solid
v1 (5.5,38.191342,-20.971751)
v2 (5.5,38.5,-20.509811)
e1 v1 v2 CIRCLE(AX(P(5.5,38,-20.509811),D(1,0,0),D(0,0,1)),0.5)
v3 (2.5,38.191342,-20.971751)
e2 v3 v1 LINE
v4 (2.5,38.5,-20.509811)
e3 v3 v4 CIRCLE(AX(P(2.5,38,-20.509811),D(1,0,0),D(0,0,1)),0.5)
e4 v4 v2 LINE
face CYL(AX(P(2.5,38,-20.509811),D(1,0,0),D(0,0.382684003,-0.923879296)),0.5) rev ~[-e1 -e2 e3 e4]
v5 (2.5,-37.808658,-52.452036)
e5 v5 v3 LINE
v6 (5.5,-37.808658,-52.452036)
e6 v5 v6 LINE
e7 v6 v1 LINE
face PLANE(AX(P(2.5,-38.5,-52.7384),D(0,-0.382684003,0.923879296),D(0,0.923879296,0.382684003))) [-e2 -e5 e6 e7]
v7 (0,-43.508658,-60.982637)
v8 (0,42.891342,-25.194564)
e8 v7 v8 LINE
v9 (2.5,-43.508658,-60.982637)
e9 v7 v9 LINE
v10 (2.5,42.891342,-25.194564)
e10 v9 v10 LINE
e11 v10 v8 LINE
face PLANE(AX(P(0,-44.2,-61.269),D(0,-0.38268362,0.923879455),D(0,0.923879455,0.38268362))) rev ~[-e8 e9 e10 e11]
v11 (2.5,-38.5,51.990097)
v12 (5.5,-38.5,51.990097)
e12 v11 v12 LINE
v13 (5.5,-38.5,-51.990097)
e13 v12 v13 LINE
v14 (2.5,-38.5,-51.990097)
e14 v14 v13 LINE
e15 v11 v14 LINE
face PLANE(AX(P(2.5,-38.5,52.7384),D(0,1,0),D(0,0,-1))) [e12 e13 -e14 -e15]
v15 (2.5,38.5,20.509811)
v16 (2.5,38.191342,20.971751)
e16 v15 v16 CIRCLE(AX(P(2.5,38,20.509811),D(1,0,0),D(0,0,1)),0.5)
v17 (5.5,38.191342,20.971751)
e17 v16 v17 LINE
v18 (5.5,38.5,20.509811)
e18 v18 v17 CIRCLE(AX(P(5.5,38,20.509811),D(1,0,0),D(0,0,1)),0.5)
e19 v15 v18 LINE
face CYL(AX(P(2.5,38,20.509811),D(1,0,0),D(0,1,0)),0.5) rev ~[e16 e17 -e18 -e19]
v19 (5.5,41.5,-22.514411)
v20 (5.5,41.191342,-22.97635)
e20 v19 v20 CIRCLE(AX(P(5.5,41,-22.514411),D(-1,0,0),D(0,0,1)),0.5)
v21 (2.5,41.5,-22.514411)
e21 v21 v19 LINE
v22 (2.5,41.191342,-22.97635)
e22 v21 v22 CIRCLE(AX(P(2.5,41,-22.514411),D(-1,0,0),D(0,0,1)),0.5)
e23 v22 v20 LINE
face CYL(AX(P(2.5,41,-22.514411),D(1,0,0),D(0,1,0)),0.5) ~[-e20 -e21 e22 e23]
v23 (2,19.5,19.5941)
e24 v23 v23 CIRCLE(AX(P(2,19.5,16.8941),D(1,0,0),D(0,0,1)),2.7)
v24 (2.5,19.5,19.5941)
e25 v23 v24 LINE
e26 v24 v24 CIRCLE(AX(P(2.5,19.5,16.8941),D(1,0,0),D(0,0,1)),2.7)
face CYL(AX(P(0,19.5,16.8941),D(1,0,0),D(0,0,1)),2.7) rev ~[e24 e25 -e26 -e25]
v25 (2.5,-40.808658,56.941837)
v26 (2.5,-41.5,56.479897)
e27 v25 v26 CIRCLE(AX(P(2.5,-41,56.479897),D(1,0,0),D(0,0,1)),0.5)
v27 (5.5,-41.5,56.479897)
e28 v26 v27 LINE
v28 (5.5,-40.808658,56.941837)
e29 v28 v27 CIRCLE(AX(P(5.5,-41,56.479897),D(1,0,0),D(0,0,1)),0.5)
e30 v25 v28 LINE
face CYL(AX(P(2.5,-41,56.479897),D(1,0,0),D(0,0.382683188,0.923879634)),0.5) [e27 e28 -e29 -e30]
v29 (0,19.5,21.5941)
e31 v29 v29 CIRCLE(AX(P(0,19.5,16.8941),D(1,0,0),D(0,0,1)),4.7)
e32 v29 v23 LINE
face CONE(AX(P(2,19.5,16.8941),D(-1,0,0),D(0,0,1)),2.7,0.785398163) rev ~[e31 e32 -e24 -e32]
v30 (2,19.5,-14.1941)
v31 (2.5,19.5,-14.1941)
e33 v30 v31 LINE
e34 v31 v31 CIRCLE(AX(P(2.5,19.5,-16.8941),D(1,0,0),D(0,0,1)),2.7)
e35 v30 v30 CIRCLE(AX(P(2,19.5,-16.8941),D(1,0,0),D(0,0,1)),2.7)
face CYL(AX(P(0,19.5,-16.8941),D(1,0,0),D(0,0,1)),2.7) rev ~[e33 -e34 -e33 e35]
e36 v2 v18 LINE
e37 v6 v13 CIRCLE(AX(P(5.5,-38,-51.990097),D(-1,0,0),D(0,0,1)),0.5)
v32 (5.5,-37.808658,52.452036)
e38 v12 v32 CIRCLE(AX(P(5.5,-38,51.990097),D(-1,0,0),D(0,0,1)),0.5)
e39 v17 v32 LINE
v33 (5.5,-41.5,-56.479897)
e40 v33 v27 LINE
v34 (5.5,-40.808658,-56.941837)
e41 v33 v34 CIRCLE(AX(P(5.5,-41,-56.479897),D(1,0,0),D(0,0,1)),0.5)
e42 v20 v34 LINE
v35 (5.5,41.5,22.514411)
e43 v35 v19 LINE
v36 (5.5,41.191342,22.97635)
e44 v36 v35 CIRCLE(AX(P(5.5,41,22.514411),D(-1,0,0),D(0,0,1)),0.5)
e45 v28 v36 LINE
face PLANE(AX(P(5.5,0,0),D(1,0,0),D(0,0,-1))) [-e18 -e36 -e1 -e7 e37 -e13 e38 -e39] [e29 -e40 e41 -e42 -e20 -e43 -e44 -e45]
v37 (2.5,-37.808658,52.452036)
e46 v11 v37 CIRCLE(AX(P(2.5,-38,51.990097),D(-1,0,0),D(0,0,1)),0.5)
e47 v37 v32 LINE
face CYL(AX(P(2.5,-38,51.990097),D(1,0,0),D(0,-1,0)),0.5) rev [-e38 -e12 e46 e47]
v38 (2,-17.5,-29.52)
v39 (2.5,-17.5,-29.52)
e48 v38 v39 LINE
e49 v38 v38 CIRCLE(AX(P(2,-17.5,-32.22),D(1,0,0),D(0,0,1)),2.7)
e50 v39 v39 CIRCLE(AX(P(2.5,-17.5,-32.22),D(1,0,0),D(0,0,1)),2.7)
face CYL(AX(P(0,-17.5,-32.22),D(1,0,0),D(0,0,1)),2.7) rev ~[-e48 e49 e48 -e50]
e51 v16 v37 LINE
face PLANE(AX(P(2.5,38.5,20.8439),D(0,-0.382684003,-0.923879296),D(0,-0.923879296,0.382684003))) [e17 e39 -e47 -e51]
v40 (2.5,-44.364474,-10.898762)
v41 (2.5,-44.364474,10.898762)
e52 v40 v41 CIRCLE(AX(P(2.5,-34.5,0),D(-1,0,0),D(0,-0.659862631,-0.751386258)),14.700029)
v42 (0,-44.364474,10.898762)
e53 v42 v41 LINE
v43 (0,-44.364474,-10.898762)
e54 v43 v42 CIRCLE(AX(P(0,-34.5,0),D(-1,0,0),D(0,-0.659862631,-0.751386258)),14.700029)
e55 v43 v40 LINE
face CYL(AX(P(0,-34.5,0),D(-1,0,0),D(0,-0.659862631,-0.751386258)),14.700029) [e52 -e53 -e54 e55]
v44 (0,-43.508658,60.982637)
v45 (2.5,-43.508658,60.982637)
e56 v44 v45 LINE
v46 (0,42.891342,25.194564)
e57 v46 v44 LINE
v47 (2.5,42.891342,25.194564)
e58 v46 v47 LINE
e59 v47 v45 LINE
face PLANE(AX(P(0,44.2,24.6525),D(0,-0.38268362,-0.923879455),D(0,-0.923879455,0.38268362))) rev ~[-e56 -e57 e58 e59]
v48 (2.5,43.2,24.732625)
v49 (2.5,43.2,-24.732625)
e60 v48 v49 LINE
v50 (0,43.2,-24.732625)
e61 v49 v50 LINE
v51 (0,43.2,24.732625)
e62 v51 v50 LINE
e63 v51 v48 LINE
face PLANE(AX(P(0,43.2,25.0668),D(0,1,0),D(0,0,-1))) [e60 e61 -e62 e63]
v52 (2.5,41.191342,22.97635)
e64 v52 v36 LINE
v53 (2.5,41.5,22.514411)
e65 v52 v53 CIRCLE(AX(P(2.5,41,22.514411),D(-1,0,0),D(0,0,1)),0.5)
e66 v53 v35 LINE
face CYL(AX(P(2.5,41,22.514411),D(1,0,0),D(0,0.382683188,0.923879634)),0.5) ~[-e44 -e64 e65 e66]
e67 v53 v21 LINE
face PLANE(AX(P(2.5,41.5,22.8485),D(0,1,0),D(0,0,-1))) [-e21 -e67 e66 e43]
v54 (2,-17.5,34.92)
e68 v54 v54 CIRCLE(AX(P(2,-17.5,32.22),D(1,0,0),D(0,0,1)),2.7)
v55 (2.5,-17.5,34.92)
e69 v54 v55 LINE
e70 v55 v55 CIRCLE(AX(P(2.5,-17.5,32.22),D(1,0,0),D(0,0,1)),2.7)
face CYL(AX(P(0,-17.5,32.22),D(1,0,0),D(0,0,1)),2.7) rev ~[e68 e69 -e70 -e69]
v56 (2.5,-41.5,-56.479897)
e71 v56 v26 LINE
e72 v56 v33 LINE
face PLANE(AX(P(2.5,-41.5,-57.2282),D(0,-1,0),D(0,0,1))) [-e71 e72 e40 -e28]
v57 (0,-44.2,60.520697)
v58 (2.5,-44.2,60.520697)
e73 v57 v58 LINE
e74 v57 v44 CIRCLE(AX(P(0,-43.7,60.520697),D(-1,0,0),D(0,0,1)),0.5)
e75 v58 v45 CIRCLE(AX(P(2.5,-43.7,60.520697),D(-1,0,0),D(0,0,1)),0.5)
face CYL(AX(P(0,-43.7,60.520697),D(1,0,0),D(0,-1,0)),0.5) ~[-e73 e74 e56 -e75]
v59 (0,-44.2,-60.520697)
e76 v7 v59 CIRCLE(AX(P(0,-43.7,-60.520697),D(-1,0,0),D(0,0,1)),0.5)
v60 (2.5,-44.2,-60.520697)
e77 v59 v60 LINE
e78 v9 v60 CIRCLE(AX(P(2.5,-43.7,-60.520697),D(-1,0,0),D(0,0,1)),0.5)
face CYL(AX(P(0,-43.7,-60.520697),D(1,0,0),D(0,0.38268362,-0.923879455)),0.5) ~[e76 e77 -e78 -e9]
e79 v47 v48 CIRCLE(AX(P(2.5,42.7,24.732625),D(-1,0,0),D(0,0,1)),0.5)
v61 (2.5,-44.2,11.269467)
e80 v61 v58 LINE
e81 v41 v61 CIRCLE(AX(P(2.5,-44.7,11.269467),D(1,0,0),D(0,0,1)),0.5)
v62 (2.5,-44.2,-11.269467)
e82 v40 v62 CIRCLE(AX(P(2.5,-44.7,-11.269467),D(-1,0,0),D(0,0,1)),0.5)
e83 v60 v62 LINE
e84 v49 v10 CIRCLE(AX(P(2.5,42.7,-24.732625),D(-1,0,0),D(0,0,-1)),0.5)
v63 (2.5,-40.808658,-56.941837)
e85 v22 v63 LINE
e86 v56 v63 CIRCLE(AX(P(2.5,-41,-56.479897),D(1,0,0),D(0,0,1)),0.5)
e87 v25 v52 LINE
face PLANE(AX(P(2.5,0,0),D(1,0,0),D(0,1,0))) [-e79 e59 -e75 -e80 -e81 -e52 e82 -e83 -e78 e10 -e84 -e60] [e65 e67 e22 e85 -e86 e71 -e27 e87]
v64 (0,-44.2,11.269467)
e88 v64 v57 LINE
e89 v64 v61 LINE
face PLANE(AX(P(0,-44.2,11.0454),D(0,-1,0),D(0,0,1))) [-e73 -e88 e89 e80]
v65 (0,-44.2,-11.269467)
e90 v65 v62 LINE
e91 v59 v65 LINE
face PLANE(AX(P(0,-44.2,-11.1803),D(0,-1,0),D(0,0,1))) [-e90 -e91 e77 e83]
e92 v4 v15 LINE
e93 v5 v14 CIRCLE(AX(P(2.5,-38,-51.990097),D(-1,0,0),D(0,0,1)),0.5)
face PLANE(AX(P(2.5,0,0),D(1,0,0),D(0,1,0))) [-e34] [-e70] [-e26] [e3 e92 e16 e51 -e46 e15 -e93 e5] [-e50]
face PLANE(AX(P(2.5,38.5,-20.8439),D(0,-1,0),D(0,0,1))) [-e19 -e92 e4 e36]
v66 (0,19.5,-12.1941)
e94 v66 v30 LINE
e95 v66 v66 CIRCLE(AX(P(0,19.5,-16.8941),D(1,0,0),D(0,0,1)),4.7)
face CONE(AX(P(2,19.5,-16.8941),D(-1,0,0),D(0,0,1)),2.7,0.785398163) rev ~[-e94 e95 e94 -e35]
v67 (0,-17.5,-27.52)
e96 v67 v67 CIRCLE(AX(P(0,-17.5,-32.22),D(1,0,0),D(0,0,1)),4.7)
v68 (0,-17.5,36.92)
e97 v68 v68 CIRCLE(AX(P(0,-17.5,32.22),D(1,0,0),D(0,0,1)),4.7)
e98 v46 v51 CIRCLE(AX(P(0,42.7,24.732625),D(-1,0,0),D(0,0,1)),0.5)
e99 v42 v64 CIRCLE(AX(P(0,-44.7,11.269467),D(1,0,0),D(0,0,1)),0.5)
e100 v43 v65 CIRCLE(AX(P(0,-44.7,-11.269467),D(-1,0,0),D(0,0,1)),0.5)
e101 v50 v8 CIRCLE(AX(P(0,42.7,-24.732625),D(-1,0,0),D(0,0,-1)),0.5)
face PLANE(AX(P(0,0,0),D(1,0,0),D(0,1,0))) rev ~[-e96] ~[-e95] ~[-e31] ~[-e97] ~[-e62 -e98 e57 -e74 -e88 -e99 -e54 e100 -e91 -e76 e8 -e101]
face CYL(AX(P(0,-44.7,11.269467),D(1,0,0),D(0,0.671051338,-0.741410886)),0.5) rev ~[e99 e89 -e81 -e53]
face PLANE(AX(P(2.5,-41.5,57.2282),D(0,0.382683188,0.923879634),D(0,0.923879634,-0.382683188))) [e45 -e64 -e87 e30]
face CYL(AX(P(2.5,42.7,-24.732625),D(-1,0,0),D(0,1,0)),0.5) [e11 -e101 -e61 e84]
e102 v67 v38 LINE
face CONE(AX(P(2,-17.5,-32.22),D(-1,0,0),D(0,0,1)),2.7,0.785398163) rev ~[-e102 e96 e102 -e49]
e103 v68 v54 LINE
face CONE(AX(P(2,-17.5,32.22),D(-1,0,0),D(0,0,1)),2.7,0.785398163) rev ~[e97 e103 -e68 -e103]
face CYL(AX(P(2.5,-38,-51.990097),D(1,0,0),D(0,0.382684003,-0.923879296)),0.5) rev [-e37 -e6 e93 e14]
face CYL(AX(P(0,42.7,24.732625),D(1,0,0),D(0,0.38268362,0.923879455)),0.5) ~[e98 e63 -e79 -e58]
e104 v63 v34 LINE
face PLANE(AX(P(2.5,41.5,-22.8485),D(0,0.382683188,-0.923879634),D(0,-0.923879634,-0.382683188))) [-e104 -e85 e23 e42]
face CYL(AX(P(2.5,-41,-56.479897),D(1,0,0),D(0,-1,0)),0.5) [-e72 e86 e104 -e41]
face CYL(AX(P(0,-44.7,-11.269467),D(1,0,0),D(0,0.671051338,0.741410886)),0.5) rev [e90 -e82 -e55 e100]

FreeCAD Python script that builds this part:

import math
import FreeCAD as App
import Part
import Sketcher
from FreeCAD import Vector
Q = App.Units.Quantity


def edges_at(feature, points):
    """Names of the edges that pass closest to the given points."""
    edges = feature.Shape.Edges
    near = lambda p: min(range(len(edges)), key=lambda i: edges[i].distToShape(Part.Vertex(*p))[0])
    return sorted({f"Edge{near(p) + 1}" for p in points})


def add_polygon(sketch, points):
    """Adds a closed chain of lines whose ends are joined by coincident constraints."""
    first, n = sketch.GeometryCount, len(points)
    for a, b in zip(points, points[1:] + points[:1]):
        sketch.addGeometry(Part.LineSegment(App.Vector(*a, 0), App.Vector(*b, 0)), False)
    for i in range(n):
        sketch.addConstraint(Sketcher.Constraint("Coincident", first + i, 2, first + (i + 1) % n, 1))

doc = App.newDocument("Part")
body = doc.addObject("PartDesign::Body", "Body")

sketch1 = body.newObject("Sketcher::SketchObject", "Sketch")
sketch1.AttachmentSupport = (doc.getObject("YZ_Plane"), [""])
sketch1.MapMode = "FlatFace"
add_polygon(sketch1, [(44, -25), (44, 25), (-44, 62), (-44, -62)])
sketch1.addConstraint([
    Sketcher.Constraint("Vertical", 0),
    Sketcher.Constraint("Vertical", 2),
    Sketcher.Constraint("Equal", 1, 3),
    Sketcher.Constraint("DistanceX", 1, 2, 0, 2, 89.0),
    Sketcher.Constraint("DistanceY", 0, 1, 0, 2, 49.706),
    Sketcher.Constraint("Angle", 1, Q("157.5 deg")),
    Sketcher.Constraint("DistanceX", -1, 1, 0, 2, 44.5),
    Sketcher.Constraint("DistanceY", -1, 1, 0, 2, 24.853),
])
pad1 = body.newObject("PartDesign::Pad", "Pad")
pad1.Profile = sketch1
pad1.Length = 2.5

sketch2 = body.newObject("Sketcher::SketchObject", "Sketch001")
sketch2.AttachmentSupport = (doc.getObject("YZ_Plane"), [""])
sketch2.MapMode = "FlatFace"
sketch2.AttachmentOffset = App.Placement(Vector(0, 0, 2.5), App.Rotation())
add_polygon(sketch2, [(42, -23), (42, 23), (-42, 57), (-42, -57)])
add_polygon(sketch2, [(38, 21), (38, -21), (-38, -53), (-38, 53)])
sketch2.addConstraint([
    Sketcher.Constraint("Vertical", 0),
    Sketcher.Constraint("Vertical", 2),
    Sketcher.Constraint("Vertical", 4),
    Sketcher.Constraint("Vertical", 6),
    Sketcher.Constraint("Parallel", 3, 5),
    Sketcher.Constraint("Parallel", 1, 7),
    Sketcher.Constraint("Equal", 1, 3),
    Sketcher.Constraint("DistanceX", 4, 2, 3, 2, 3.0),
    Sketcher.Constraint("DistanceX", 2, 2, 5, 2, 3.0),
    Sketcher.Constraint("Angle", 1, Q("157.5 deg")),
    Sketcher.Constraint("DistanceX", 1, 2, 0, 2, 83.0),
    Sketcher.Constraint("DistanceX", -1, 1, 0, 2, 41.5),
    Sketcher.Constraint("DistanceY", 0, 1, 0, 2, 45.697),
    Sketcher.Constraint("DistanceY", 5, 2, 3, 2, 29.89),
    Sketcher.Constraint("DistanceY", 0, 2, 6, 2, 29.89),
    Sketcher.Constraint("DistanceY", 4, 2, -1, 1, 20.844),
])
pad2 = body.newObject("PartDesign::Pad", "Pad001")
pad2.Profile = sketch2
pad2.Length = 3

sketch3 = body.newObject("Sketcher::SketchObject", "Sketch002")
sketch3.AttachmentSupport = (doc.getObject("YZ_Plane"), [""])
sketch3.MapMode = "FlatFace"
sketch3.addGeometry([
    Part.LineSegment(Vector(-44, 11, 0), Vector(-44, -11, 0)),
    Part.ArcOfCircle(Part.Circle(Vector(-34, 0, 0), Vector(0, 0, 1), 15), math.radians(132), math.radians(228)),
], False)
sketch3.addConstraint([
    Sketcher.Constraint("Coincident", 0, 1, 1, 1),
    Sketcher.Constraint("Coincident", 1, 2, 0, 2),
    Sketcher.Constraint("Vertical", 0),
    Sketcher.Constraint("PointOnObject", 1, 3, -1),
    Sketcher.Constraint("Radius", 1, 15.0),
    Sketcher.Constraint("DistanceX", 0, 1, 1, 3, 10.0),
    Sketcher.Constraint("DistanceX", 1, 3, -1, 1, 34.5),
])
pad3 = body.newObject("PartDesign::Pad", "Pad002")
pad3.Profile = sketch3
pad3.Length = 2.5

sketch4 = body.newObject("Sketcher::SketchObject", "Sketch003")
sketch4.AttachmentSupport = (doc.getObject("YZ_Plane"), [""])
sketch4.MapMode = "FlatFace"
sketch4.addGeometry([
    Part.Circle(Vector(19.5, -16.9, 0), Vector(0, 0, 1), 2.7),
    Part.Circle(Vector(-17.5, -32.2, 0), Vector(0, 0, 1), 2.7),
    Part.Circle(Vector(-17.5, 32.2, 0), Vector(0, 0, 1), 2.7),
    Part.Circle(Vector(19.5, 16.9, 0), Vector(0, 0, 1), 2.7),
], False)
sketch4.addConstraint([
    Sketcher.Constraint("Equal", 0, 1),
    Sketcher.Constraint("Equal", 1, 2),
    Sketcher.Constraint("Equal", 2, 3),
    Sketcher.Constraint("Symmetric", 1, 3, 2, 3, -1),
    Sketcher.Constraint("Symmetric", 0, 3, 3, 3, -1),
    Sketcher.Constraint("Diameter", 0, 5.4),
    Sketcher.Constraint("DistanceX", 1, 3, 0, 3, 37.0),
    Sketcher.Constraint("DistanceX", -1, 1, 0, 3, 19.5),
    Sketcher.Constraint("DistanceY", 1, 3, -1, 1, 32.22),
    Sketcher.Constraint("DistanceY", 0, 3, -1, 1, 16.894),
])
doc.recompute()
hole = body.newObject("PartDesign::Hole", "Hole")
hole.Profile = sketch4
hole.ThreadType = "None"
hole.Diameter = 5.4
hole.DepthType = "ThroughAll"
hole.Reversed = True
doc.recompute()

chamfer = body.newObject("PartDesign::Chamfer", "Chamfer")
chamfer.Base = (hole, edges_at(hole, [
    (0, -17.5, -34.92),
    (0, 19.5, -19.594),
    (0, -17.5, 29.52),
    (0, 19.5, 14.194),
]))
chamfer.Size = 2

sketch5 = body.newObject("Sketcher::SketchObject", "Sketch004")
sketch5.AttachmentSupport = (doc.getObject("YZ_Plane"), [""])
sketch5.MapMode = "FlatFace"
sketch5.addGeometry([
    Part.LineSegment(Vector(-44, 11, 0), Vector(-44, 62, 0)),
    Part.LineSegment(Vector(-44, 62, 0), Vector(44, 25, 0)),
    Part.LineSegment(Vector(44, 25, 0), Vector(44, -25, 0)),
    Part.LineSegment(Vector(44, -25, 0), Vector(-44, -62, 0)),
    Part.LineSegment(Vector(-44, -62, 0), Vector(-44, -11, 0)),
    Part.ArcOfCircle(Part.Circle(Vector(-34, 0, 0), Vector(0, 0, 1), 15), math.radians(132), math.radians(228)),
    Part.LineSegment(Vector(-44, -11, 0), Vector(-44, -61, 0)),
    Part.LineSegment(Vector(-44, -61, 0), Vector(44, -25, 0)),
    Part.LineSegment(Vector(44, -25, 0), Vector(44, 25, 0)),
    Part.LineSegment(Vector(44, 25, 0), Vector(-44, 61, 0)),
    Part.LineSegment(Vector(-44, 61, 0), Vector(-44, 11, 0)),
    Part.ArcOfCircle(Part.Circle(Vector(-34, 0, 0), Vector(0, 0, 1), 15), math.radians(131), math.radians(229)),
], False)
sketch5.addConstraint([
    Sketcher.Constraint("Coincident", 0, 2, 1, 1),
    Sketcher.Constraint("Coincident", 1, 2, 2, 1),
    Sketcher.Constraint("Coincident", 2, 2, 3, 1),
    Sketcher.Constraint("Coincident", 3, 2, 4, 1),
    Sketcher.Constraint("Coincident", 4, 2, 5, 2),
    Sketcher.Constraint("Coincident", 5, 1, 0, 1),
    Sketcher.Constraint("Coincident", 6, 2, 7, 1),
    Sketcher.Constraint("Coincident", 7, 2, 8, 1),
    Sketcher.Constraint("Coincident", 8, 2, 9, 1),
    Sketcher.Constraint("Coincident", 9, 2, 10, 1),
    Sketcher.Constraint("Coincident", 10, 2, 11, 1),
    Sketcher.Constraint("Coincident", 11, 2, 6, 1),
    Sketcher.Constraint("Vertical", 0),
    Sketcher.Constraint("Vertical", 2),
    Sketcher.Constraint("Vertical", 4),
    Sketcher.Constraint("Vertical", 6),
    Sketcher.Constraint("Vertical", 8),
    Sketcher.Constraint("Vertical", 10),
    Sketcher.Constraint("Coincident", 11, 3, 5, 3),
    Sketcher.Constraint("Symmetric", 0, 2, 3, 2, -1),
    Sketcher.Constraint("Symmetric", 6, 2, 9, 2, -1),
    Sketcher.Constraint("PointOnObject", 5, 3, -1),
    Sketcher.Constraint("Parallel", 3, 7),
    Sketcher.Constraint("Parallel", 1, 9),
    Sketcher.Constraint("Equal", 1, 3),
    Sketcher.Constraint("Radius", 5, 15.0),
    Sketcher.Constraint("Radius", 11, 14.7),
    Sketcher.Constraint("DistanceX", 3, 2, 6, 2, 0.3),
    Sketcher.Constraint("DistanceX", 7, 2, 2, 2, 0.3),
    Sketcher.Constraint("Angle", 1, Q("-22.5 deg")),
    Sketcher.Constraint("DistanceX", 0, 2, 5, 3, 10.0),
    Sketcher.Constraint("DistanceX", 5, 3, 1, 2, 79.0),
    Sketcher.Constraint("DistanceX", 5, 3, -1, 1, 34.5),
    Sketcher.Constraint("DistanceY", 2, 2, 2, 1, 49.706),
    Sketcher.Constraint("DistanceY", 8, 1, 8, 2, 49.305),
])
pocket1 = body.newObject("PartDesign::Pocket", "Pocket")
pocket1.Profile = sketch5
pocket1.Length = 2.5
pocket1.Reversed = True

sketch6 = body.newObject("Sketcher::SketchObject", "Sketch005")
sketch6.AttachmentSupport = (doc.getObject("YZ_Plane"), [""])
sketch6.MapMode = "FlatFace"
add_polygon(sketch6, [(44.2, -25.1), (43.2, -25.1), (43.2, 25.1), (44.2, 25.1)])
sketch6.addConstraint([
    Sketcher.Constraint("Horizontal", 0),
    Sketcher.Constraint("Vertical", 1),
    Sketcher.Constraint("Horizontal", 2),
    Sketcher.Constraint("Vertical", 3),
    Sketcher.Constraint("DistanceX", 0, 2, 0, 1, 1.0),
    Sketcher.Constraint("DistanceX", -1, 1, 0, 2, 43.2),
    Sketcher.Constraint("DistanceY", 1, 1, 1, 2, 50.1336),
    Sketcher.Constraint("DistanceY", 0, 2, -1, 1, 25.0668),
])
pocket2 = body.newObject("PartDesign::Pocket", "Pocket001")
pocket2.Profile = sketch6
pocket2.Length = 2.5
pocket2.Reversed = True
doc.recompute()

fillet = body.newObject("PartDesign::Fillet", "Fillet")
fillet.Base = (pocket2, edges_at(pocket2, [
    (1.25, 43.2, 25.067),
    (1.25, 43.2, -25.067),
    (1.25, -44.2, -61.269),
    (1.25, -44.2, 61.269),
    (4, -41.5, 57.228),
    (4, -41.5, -57.228),
    (4, 41.5, -22.849),
    (4, 41.5, 22.849),
    (4, -38.5, -52.738),
    (4, 38.5, -20.844),
    (4, 38.5, 20.844),
    (4, -38.5, 52.738),
    (1.25, -44.2, 11.045),
    (1.25, -44.2, -11.045),
]))
fillet.Radius = 0.5

doc.recompute()
